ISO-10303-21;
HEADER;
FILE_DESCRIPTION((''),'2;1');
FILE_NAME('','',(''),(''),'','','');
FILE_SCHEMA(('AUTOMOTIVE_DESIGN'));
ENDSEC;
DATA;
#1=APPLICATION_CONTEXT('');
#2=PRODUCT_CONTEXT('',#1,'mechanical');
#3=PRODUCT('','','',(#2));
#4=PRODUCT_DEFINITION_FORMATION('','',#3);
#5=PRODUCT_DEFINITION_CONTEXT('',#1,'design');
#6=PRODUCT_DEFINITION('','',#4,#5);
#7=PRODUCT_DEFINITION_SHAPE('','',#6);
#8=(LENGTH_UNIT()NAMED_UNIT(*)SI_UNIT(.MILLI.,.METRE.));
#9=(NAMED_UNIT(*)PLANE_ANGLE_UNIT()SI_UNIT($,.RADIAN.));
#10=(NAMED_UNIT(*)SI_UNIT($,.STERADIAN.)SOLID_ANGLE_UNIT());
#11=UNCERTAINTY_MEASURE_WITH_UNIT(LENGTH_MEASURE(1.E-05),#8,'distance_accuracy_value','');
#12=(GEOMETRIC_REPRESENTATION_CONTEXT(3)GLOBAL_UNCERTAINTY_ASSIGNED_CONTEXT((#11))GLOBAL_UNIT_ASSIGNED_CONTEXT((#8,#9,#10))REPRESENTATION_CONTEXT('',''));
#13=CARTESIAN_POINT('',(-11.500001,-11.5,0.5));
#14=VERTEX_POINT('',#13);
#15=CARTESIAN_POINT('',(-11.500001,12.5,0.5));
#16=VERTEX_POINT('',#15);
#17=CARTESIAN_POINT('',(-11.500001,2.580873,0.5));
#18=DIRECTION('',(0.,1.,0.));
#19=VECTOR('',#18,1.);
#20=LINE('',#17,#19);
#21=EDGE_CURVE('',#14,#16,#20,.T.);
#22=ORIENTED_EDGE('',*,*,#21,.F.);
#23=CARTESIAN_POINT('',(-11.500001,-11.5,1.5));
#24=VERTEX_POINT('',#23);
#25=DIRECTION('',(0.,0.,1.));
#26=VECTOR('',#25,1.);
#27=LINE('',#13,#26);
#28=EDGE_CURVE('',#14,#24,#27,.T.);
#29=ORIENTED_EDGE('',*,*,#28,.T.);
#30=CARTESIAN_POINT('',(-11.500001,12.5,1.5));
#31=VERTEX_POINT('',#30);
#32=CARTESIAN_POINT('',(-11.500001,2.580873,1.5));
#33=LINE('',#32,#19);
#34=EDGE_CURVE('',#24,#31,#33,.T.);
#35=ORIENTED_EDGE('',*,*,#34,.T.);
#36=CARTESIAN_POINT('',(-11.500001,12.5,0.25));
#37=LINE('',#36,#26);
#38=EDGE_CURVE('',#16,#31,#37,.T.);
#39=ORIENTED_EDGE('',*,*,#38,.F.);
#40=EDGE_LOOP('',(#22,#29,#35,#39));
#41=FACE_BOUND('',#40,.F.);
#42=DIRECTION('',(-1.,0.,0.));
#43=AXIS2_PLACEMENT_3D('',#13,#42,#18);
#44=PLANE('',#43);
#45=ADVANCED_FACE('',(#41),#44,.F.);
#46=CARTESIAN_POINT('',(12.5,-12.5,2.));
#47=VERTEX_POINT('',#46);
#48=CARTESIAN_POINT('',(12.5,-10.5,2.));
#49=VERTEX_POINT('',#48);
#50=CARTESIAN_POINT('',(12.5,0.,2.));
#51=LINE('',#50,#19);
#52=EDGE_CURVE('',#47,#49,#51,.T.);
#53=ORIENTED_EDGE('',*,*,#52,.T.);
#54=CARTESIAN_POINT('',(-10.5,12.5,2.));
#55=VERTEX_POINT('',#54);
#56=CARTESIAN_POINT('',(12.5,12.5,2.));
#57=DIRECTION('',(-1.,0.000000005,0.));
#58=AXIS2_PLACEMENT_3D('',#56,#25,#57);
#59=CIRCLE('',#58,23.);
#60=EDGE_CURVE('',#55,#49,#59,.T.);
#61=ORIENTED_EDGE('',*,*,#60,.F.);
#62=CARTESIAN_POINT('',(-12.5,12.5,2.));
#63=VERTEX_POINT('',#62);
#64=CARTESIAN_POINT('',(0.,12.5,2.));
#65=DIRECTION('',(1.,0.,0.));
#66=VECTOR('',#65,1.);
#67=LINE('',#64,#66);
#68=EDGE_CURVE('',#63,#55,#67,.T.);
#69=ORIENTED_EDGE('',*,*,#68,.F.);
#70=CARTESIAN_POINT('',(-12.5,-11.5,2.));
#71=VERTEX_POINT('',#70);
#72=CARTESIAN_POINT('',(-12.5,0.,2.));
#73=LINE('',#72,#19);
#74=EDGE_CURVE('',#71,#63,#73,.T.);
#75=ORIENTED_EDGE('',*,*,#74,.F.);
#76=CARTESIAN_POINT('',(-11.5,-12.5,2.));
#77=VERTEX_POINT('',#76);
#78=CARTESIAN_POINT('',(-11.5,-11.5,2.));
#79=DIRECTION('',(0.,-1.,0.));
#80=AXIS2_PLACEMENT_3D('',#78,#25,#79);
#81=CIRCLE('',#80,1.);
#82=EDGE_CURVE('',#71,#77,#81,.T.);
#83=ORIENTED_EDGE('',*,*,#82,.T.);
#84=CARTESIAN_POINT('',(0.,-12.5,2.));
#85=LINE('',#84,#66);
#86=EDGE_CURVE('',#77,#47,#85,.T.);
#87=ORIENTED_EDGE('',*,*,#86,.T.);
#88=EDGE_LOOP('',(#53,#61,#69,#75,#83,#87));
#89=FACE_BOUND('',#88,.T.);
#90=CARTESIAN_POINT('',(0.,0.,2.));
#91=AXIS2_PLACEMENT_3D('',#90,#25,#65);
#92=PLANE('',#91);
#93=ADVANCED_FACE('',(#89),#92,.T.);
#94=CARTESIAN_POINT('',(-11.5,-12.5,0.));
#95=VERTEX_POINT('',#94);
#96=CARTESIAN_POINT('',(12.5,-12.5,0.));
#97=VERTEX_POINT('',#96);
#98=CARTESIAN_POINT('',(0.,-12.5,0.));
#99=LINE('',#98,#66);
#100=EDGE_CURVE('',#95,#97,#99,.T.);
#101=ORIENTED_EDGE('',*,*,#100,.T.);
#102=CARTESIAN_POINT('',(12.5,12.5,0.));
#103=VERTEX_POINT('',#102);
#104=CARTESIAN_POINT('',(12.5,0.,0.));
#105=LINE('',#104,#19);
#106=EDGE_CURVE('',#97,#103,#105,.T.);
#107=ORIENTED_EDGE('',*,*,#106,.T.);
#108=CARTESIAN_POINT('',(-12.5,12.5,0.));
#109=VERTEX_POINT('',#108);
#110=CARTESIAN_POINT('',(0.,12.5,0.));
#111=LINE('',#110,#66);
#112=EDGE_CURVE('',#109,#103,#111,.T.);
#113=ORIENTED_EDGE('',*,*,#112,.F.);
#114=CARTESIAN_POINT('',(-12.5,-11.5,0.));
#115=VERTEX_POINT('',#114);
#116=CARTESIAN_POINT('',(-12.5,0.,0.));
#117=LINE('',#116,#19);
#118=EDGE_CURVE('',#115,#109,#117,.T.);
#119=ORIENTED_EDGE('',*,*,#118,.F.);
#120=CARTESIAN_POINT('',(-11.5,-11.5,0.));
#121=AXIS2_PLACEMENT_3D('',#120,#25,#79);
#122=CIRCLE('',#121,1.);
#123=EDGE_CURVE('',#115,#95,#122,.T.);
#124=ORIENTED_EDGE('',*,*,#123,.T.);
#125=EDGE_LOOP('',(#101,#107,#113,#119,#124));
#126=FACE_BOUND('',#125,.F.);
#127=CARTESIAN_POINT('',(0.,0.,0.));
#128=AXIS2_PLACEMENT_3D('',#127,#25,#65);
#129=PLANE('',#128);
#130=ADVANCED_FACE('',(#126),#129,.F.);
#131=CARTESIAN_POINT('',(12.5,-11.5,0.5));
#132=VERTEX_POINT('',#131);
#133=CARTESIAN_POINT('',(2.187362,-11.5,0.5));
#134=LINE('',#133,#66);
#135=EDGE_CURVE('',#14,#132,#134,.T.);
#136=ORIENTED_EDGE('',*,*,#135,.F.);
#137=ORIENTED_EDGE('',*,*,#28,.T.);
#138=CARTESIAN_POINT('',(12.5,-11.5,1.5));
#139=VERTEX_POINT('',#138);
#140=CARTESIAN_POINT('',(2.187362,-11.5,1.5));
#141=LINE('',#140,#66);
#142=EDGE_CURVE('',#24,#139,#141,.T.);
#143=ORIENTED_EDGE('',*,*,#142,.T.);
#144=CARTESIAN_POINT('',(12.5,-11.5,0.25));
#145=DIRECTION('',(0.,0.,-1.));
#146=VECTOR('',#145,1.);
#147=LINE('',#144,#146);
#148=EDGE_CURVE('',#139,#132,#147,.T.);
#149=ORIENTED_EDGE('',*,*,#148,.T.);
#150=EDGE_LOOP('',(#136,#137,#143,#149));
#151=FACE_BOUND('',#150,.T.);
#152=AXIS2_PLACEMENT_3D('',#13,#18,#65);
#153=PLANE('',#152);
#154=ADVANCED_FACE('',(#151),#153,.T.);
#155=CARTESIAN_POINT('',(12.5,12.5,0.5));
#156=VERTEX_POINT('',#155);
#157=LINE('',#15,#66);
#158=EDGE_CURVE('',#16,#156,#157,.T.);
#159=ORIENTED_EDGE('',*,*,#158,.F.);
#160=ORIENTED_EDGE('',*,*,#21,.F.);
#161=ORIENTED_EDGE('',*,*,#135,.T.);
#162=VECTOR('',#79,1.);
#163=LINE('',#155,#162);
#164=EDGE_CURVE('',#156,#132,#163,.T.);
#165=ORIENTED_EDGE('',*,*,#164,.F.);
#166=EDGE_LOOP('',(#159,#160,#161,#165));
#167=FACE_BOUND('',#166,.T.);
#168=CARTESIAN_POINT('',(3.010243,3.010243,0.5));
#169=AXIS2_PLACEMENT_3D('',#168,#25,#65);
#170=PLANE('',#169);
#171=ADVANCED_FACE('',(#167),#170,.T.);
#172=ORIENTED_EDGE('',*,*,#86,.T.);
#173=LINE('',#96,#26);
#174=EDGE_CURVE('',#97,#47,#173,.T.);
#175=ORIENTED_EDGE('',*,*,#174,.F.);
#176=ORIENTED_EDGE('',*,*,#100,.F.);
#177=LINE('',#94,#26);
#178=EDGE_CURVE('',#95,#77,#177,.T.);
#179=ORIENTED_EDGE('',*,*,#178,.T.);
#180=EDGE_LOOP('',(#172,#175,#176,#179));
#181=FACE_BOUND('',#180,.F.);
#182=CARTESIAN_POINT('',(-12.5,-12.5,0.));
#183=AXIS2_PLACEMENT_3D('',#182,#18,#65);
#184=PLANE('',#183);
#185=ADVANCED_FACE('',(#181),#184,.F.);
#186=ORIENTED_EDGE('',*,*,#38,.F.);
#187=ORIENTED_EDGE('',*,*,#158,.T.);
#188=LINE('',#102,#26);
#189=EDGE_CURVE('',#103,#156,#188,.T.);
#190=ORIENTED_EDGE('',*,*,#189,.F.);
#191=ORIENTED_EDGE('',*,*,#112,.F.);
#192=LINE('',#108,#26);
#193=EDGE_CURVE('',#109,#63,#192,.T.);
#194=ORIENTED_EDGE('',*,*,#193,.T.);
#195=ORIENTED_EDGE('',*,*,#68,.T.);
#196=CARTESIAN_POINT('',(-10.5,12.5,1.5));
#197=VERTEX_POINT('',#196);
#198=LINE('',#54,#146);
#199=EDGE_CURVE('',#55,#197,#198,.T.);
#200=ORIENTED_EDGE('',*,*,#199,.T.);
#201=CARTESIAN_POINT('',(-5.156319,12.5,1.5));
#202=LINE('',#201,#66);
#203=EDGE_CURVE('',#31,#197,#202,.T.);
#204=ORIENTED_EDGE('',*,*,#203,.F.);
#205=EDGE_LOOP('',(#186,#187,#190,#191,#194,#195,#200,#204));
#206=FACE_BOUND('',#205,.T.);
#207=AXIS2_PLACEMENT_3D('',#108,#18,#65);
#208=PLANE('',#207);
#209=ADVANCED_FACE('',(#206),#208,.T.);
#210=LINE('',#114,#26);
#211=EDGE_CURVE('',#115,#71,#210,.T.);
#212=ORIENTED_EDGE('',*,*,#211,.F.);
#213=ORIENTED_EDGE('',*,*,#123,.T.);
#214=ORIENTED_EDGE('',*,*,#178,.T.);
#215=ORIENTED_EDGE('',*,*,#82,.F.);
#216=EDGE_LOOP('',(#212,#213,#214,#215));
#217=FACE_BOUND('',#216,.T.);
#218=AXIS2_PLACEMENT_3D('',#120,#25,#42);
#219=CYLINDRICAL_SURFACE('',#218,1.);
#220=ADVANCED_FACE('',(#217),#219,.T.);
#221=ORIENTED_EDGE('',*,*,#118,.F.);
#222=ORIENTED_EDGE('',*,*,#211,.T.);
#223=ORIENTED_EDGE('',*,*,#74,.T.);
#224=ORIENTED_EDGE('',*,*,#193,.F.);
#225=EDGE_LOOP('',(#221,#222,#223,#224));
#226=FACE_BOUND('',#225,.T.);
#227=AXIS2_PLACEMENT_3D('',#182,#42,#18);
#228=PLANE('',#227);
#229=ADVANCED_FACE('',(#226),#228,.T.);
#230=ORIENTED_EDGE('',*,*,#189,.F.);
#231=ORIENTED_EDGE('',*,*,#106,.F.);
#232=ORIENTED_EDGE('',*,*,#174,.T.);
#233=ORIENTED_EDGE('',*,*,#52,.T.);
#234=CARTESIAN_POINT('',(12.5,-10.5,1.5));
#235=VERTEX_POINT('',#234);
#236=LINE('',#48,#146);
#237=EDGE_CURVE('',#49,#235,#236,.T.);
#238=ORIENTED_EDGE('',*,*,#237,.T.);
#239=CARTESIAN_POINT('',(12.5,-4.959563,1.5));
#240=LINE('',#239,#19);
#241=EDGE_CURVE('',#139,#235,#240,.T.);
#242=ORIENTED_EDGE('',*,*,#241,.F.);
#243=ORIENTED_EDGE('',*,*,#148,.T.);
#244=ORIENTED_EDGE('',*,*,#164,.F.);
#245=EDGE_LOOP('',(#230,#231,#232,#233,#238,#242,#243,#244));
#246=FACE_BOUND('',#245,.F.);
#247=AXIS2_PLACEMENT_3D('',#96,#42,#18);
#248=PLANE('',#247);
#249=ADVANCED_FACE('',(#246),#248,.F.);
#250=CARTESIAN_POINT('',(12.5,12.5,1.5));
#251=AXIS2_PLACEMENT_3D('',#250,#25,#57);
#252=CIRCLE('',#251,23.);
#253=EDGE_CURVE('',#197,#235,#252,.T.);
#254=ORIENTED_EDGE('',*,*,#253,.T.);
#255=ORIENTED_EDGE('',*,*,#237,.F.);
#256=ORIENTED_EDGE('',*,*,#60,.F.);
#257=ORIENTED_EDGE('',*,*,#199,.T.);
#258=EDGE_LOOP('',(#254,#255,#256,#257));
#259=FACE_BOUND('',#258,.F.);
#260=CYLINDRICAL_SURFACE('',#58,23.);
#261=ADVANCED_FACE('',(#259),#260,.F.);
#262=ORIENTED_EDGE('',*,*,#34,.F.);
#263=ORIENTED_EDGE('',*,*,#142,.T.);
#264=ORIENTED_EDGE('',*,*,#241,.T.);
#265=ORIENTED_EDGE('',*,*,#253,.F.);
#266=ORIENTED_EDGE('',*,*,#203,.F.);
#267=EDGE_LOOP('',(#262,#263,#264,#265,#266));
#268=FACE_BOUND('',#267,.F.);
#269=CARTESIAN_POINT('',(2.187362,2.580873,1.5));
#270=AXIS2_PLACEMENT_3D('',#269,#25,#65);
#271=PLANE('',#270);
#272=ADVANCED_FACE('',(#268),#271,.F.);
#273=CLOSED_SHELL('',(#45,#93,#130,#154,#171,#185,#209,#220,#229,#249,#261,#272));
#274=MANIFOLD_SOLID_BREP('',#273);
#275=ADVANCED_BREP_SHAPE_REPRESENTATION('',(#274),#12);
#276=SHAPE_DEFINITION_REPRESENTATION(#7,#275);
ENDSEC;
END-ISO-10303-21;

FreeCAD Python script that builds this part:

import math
import FreeCAD as App
import Part
import Sketcher

V = App.Vector
Q = App.Units.Quantity


def edges_at(feature, points):
    """Names of the edges that pass closest to the given points."""
    edges = feature.Shape.Edges
    near = lambda p: min(range(len(edges)), key=lambda i: edges[i].distToShape(Part.Vertex(*p))[0])
    return sorted({f"Edge{near(p) + 1}" for p in points})


def add_polygon(sketch, points):
    """Adds a closed chain of lines whose ends are joined by coincident constraints."""
    first, n = sketch.GeometryCount, len(points)
    for a, b in zip(points, points[1:] + points[:1]):
        sketch.addGeometry(Part.LineSegment(App.Vector(*a, 0), App.Vector(*b, 0)), False)
    for i in range(n):
        sketch.addConstraint(Sketcher.Constraint("Coincident", first + i, 2, first + (i + 1) % n, 1))

doc = App.newDocument("Part")
body = doc.addObject("PartDesign::Body", "Body")

# Sketch on XY plane
sketch1 = doc.addObject("Sketcher::SketchObject", "Sketch")
body.addObject(sketch1)
sketch1.AttachmentSupport = (doc.XY_Plane, [""])
sketch1.MapMode = "FlatFace"
add_polygon(sketch1, [(-12.5, 12.5), (-12.5, -12.5), (12.5, -12.5), (12.5, 12.5)])  # lines 0-3
sketch1.addConstraint([
    Sketcher.Constraint("Vertical", 0),
    Sketcher.Constraint("Horizontal", 1),
    Sketcher.Constraint("Vertical", 2),
    Sketcher.Constraint("Horizontal", 3),
    Sketcher.Constraint("Symmetric", 0, 2, 2, 2, -1, 1),
    Sketcher.Constraint("Equal", 3, 0),
    Sketcher.Constraint("DistanceX", 1, 1, 1, 2, Q("25 mm")),
])
pad1 = doc.addObject("PartDesign::Pad", "Pad")
body.addObject(pad1)
pad1.Profile = sketch1
pad1.Length = 2

# Sketch on XY plane
sketch2 = doc.addObject("Sketcher::SketchObject", "Sketch001")
body.addObject(sketch2)
sketch2.AttachmentSupport = (doc.XY_Plane, [""])
sketch2.MapMode = "FlatFace"
sketch2.AttachmentOffset = App.Placement(V(0, 0, 2), App.Rotation())
sketch2.addGeometry([
    Part.LineSegment(V(12.5, -10.5, 0), V(12.5, 12.5, 0)),
    Part.LineSegment(V(12.5, 12.5, 0), V(-10.5, 12.5, 0)),
    Part.ArcOfCircle(Part.Circle(V(12.5, 12.5, 0), V(0, 0, 1), 23), math.radians(180), math.radians(270)),
], False)
sketch2.addConstraint([
    Sketcher.Constraint("Coincident", 0, 2, 1, 1),
    Sketcher.Constraint("Coincident", 1, 2, 2, 1),
    Sketcher.Constraint("Coincident", 2, 2, 0, 1),
    Sketcher.Constraint("Vertical", 0),
    Sketcher.Constraint("Horizontal", 1),
    Sketcher.Constraint("Coincident", 0, 2, 2, 3),
    Sketcher.Constraint("Radius", 2, Q("23 mm")),
    Sketcher.Constraint("DistanceX", -1, 1, 2, 3, Q("12.5 mm")),
    Sketcher.Constraint("DistanceY", -1, 1, 2, 3, Q("12.5 mm")),
])
pocket1 = doc.addObject("PartDesign::Pocket", "Pocket")
body.addObject(pocket1)
pocket1.Profile = sketch2
pocket1.Length = 1.5

# Sketch on XY plane
sketch3 = doc.addObject("Sketcher::SketchObject", "Sketch002")
body.addObject(sketch3)
sketch3.AttachmentSupport = (doc.XY_Plane, [""])
sketch3.MapMode = "FlatFace"
sketch3.AttachmentOffset = App.Placement(V(0, 0, 0.5), App.Rotation())
add_polygon(sketch3, [(-11.500001, 16.661746), (-11.500001, -11.5), (15.874724, -11.5), (15.874724, 16.661746)])  # lines 0-3
sketch3.addConstraint([
    Sketcher.Constraint("Vertical", 0),
    Sketcher.Constraint("Horizontal", 1),
    Sketcher.Constraint("Vertical", 2),
    Sketcher.Constraint("Horizontal", 3),
    Sketcher.Constraint("DistanceX", 0, 2, -1, 1, Q("11.500001 mm")),
    Sketcher.Constraint("DistanceY", 0, 2, -1, 1, Q("11.5 mm")),
    Sketcher.Constraint("DistanceX", 1, 1, 1, 2, Q("27.374725 mm")),
    Sketcher.Constraint("DistanceY", 0, 2, 0, 1, Q("28.161746 mm")),
])
pocket2 = doc.addObject("PartDesign::Pocket", "Pocket001")
body.addObject(pocket2)
pocket2.Profile = sketch3
pocket2.Length = 1
pocket2.Reversed = True
doc.recompute()

fillet = doc.addObject("PartDesign::Fillet", "Fillet")
body.addObject(fillet)
fillet.Base = (pocket2, edges_at(pocket2, [(-12.5, -12.5, 1)]))
fillet.Radius = 1

doc.recompute()
